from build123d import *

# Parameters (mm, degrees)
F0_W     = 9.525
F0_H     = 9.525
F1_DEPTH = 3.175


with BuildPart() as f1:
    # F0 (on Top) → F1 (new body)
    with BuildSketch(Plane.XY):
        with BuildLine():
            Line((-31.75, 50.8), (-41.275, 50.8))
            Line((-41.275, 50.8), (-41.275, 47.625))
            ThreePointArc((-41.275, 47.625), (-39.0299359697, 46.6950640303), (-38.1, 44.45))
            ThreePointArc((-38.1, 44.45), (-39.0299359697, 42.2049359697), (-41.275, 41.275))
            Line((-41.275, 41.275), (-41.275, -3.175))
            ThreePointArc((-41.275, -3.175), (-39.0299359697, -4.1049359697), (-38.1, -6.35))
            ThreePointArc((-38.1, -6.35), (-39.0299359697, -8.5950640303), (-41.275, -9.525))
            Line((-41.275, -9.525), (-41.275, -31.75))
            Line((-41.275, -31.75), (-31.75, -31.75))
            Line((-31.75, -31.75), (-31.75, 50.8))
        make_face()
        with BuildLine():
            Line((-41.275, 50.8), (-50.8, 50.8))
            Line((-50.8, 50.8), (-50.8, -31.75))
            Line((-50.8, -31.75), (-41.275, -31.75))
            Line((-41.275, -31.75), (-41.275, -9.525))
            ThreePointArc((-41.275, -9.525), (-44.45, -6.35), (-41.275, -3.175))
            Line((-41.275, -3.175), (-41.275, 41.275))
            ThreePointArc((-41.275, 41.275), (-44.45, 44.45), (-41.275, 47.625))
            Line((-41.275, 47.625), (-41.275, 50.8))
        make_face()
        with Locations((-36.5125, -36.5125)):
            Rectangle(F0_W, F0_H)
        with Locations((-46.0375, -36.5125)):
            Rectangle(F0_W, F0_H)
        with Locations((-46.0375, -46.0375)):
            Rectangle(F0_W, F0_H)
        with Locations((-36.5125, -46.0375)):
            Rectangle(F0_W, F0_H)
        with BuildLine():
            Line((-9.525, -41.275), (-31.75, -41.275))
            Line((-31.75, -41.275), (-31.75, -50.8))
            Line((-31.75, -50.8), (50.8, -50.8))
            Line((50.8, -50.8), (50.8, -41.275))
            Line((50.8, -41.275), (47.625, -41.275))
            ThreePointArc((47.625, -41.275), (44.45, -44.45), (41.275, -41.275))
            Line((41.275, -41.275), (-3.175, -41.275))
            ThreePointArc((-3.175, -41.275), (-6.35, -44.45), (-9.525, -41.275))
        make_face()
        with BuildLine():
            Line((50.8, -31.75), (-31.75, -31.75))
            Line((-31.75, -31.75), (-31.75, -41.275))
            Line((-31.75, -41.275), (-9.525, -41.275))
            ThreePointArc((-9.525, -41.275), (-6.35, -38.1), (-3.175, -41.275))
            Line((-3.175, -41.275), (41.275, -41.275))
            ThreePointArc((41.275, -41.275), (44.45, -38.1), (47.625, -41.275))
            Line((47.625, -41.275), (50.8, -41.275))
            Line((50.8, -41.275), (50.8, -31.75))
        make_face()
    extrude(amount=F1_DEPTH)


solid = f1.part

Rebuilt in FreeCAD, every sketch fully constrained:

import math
import FreeCAD as App
import Part
import Sketcher
from FreeCAD import Vector
Q = App.Units.Quantity


def add_polygon(sketch, points):
    """Adds a closed chain of lines whose ends are joined by coincident constraints."""
    first, n = sketch.GeometryCount, len(points)
    for a, b in zip(points, points[1:] + points[:1]):
        sketch.addGeometry(Part.LineSegment(App.Vector(*a, 0), App.Vector(*b, 0)), False)
    for i in range(n):
        sketch.addConstraint(Sketcher.Constraint("Coincident", first + i, 2, first + (i + 1) % n, 1))

doc = App.newDocument("Part")
body = doc.addObject("PartDesign::Body", "Body")

# Sketch on XY plane
sketch1 = doc.addObject("Sketcher::SketchObject", "Sketch")
body.addObject(sketch1)
sketch1.AttachmentSupport = (doc.XY_Plane, [""])
sketch1.MapMode = "FlatFace"
add_polygon(sketch1, [(-31.8, 50.8), (-50.8, 50.8), (-50.8, -50.8), (50.8, -50.8), (50.8, -31.8), (-31.8, -31.8)])  # lines 0-5
sketch1.addGeometry(Part.Circle(Vector(44.5, -41.3, 0), Vector(0, 0, 1), 3.2), False)  # 6
sketch1.addGeometry(Part.Circle(Vector(-6.3, -41.3, 0), Vector(0, 0, 1), 3.2), False)  # 7
sketch1.addGeometry(Part.ArcOfCircle(Part.Circle(Vector(-41.3, 44.5, 0), Vector(0, 0, 1), 3.2), math.radians(0), math.radians(90)), False)  # 8
sketch1.addGeometry(Part.ArcOfCircle(Part.Circle(Vector(-41.3, 44.5, 0), Vector(0, 0, 1), 3.2), math.radians(-90), math.radians(0)), False)  # 9
sketch1.addGeometry(Part.ArcOfCircle(Part.Circle(Vector(-41.3, 44.5, 0), Vector(0, 0, 1), 3.2), math.radians(90), math.radians(270)), False)  # 10
sketch1.addGeometry(Part.ArcOfCircle(Part.Circle(Vector(-41.3, -6.3, 0), Vector(0, 0, 1), 3.2), math.radians(0), math.radians(90)), False)  # 11
sketch1.addGeometry(Part.ArcOfCircle(Part.Circle(Vector(-41.3, -6.3, 0), Vector(0, 0, 1), 3.2), math.radians(-90), math.radians(0)), False)  # 12
sketch1.addGeometry(Part.ArcOfCircle(Part.Circle(Vector(-41.3, -6.3, 0), Vector(0, 0, 1), 3.2), math.radians(90), math.radians(270)), False)  # 13
sketch1.addConstraint(Sketcher.Constraint("Tangent", 8, 1, 9, 2))
sketch1.addConstraint(Sketcher.Constraint("Tangent", 9, 1, 10, 2))
sketch1.addConstraint(Sketcher.Constraint("Tangent", 10, 1, 8, 2))
sketch1.addConstraint(Sketcher.Constraint("Tangent", 11, 1, 12, 2))
sketch1.addConstraint(Sketcher.Constraint("Tangent", 12, 1, 13, 2))
sketch1.addConstraint(Sketcher.Constraint("Tangent", 13, 1, 11, 2))
sketch1.addConstraint(Sketcher.Constraint("Horizontal", 0))
sketch1.addConstraint(Sketcher.Constraint("Vertical", 1))
sketch1.addConstraint(Sketcher.Constraint("Horizontal", 2))
sketch1.addConstraint(Sketcher.Constraint("Vertical", 3))
sketch1.addConstraint(Sketcher.Constraint("Horizontal", 4))
sketch1.addConstraint(Sketcher.Constraint("Vertical", 5))
sketch1.addConstraint(Sketcher.Constraint("Equal", 6, 7))
sketch1.addConstraint(Sketcher.Constraint("Equal", 7, 8))
sketch1.addConstraint(Sketcher.Constraint("Equal", 10, 11))
sketch1.addConstraint(Sketcher.Constraint("Symmetric", 0, 2, 2, 2, -1, 1))
sketch1.addConstraint(Sketcher.Constraint("Horizontal", 6, 3, 7, 3))
sketch1.addConstraint(Sketcher.Constraint("Horizontal", 10, 3, 8, 1))
sketch1.addConstraint(Sketcher.Constraint("Horizontal", 13, 3, 11, 1))
sketch1.addConstraint(Sketcher.Constraint("Vertical", 10, 3, 11, 3))
sketch1.addConstraint(Sketcher.Constraint("Vertical", 13, 3, 9, 1))
sketch1.addConstraint(Sketcher.Constraint("Vertical", 9, 1, 10, 1))
sketch1.addConstraint(Sketcher.Constraint("Vertical", 10, 1, 12, 1))
sketch1.addConstraint(Sketcher.Constraint("Vertical", 12, 1, 13, 1))
sketch1.addConstraint(Sketcher.Constraint("Equal", 2, 1))
sketch1.addConstraint(Sketcher.Constraint("Equal", 0, 3))
sketch1.addConstraint(Sketcher.Constraint("Diameter", 6, Q("0.25 in")))
sketch1.addConstraint(Sketcher.Constraint("DistanceX", 2, 1, 2, 2, Q("4 in")))
sketch1.addConstraint(Sketcher.Constraint("DistanceX", 7, 3, 6, 3, Q("2 in")))
sketch1.addConstraint(Sketcher.Constraint("DistanceY", 11, 3, 8, 3, Q("2 in")))
sketch1.addConstraint(Sketcher.Constraint("DistanceY", 3, 2, 11, 3, Q("1 in")))
sketch1.addConstraint(Sketcher.Constraint("DistanceX", 4, 2, 7, 3, Q("1 in")))
sketch1.addConstraint(Sketcher.Constraint("DistanceX", 0, 2, 0, 1, Q("0.75 in")))
sketch1.addConstraint(Sketcher.Constraint("DistanceX", 8, 1, -1, 1, Q("1.5 in")))
sketch1.addConstraint(Sketcher.Constraint("DistanceY", 6, 3, -1, 1, Q("1.625 in")))
pad1 = doc.addObject("PartDesign::Pad", "Pad")
body.addObject(pad1)
pad1.Profile = sketch1
pad1.Length = Q("0.125 in")

doc.recompute()
